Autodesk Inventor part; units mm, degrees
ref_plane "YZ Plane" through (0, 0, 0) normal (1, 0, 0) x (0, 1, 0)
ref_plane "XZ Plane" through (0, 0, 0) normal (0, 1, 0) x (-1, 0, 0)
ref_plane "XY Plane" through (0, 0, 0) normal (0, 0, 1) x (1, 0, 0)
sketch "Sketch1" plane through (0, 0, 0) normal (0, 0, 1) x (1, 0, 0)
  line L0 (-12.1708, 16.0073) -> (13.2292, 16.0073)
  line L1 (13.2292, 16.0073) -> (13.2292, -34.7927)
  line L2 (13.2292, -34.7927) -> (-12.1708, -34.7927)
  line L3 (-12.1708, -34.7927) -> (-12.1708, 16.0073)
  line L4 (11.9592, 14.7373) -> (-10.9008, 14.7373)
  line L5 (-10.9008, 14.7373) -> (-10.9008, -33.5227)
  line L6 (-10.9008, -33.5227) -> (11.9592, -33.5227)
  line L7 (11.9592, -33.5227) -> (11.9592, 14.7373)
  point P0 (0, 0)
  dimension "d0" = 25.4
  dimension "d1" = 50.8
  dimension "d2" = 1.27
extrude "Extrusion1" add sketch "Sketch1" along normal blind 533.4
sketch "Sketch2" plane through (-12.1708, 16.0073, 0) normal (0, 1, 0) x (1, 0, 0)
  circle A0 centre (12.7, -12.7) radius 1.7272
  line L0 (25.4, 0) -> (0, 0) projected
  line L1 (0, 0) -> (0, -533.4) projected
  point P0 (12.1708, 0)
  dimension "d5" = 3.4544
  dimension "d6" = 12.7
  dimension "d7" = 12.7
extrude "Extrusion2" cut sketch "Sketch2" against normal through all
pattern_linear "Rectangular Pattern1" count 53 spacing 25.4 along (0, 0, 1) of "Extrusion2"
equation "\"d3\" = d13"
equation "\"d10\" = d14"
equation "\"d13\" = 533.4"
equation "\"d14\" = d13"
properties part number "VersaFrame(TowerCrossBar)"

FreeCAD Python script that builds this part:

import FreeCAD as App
import Part
import Sketcher
from FreeCAD import Vector
Q = App.Units.Quantity

doc = App.newDocument("Part")
body = doc.addObject("PartDesign::Body", "Body")

# Sketch on XY plane
sketch1 = doc.addObject("Sketcher::SketchObject", "Sketch")
body.addObject(sketch1)
sketch1.AttachmentSupport = (doc.XY_Plane, [""])
sketch1.MapMode = "FlatFace"
sketch1.addGeometry([
    Part.LineSegment(Vector(13, 16, 0), Vector(-12, 16, 0)),  # 0
    Part.LineSegment(Vector(-12, 16, 0), Vector(-12, -35, 0)),  # 1
    Part.LineSegment(Vector(-12, -35, 0), Vector(13, -35, 0)),  # 2
    Part.LineSegment(Vector(13, -35, 0), Vector(13, 16, 0)),  # 3
    Part.LineSegment(Vector(-11, 15, 0), Vector(12, 15, 0)),  # 4
    Part.LineSegment(Vector(12, 15, 0), Vector(12, -34, 0)),  # 5
    Part.LineSegment(Vector(12, -34, 0), Vector(-11, -34, 0)),  # 6
    Part.LineSegment(Vector(-11, -34, 0), Vector(-11, 15, 0)),  # 7
], False)
sketch1.addConstraint([
    Sketcher.Constraint("Coincident", 0, 2, 1, 1),
    Sketcher.Constraint("Coincident", 1, 2, 2, 1),
    Sketcher.Constraint("Coincident", 2, 2, 3, 1),
    Sketcher.Constraint("Coincident", 3, 2, 0, 1),
    Sketcher.Constraint("Coincident", 4, 2, 5, 1),
    Sketcher.Constraint("Coincident", 5, 2, 6, 1),
    Sketcher.Constraint("Coincident", 6, 2, 7, 1),
    Sketcher.Constraint("Coincident", 7, 2, 4, 1),
    Sketcher.Constraint("Horizontal", 0),
    Sketcher.Constraint("Vertical", 1),
    Sketcher.Constraint("Horizontal", 2),
    Sketcher.Constraint("Vertical", 3),
    Sketcher.Constraint("Horizontal", 4),
    Sketcher.Constraint("Vertical", 5),
    Sketcher.Constraint("Horizontal", 6),
    Sketcher.Constraint("Vertical", 7),
    Sketcher.Constraint("DistanceX", 0, 2, 0, 1, Q("1 in")),
    Sketcher.Constraint("DistanceY", 1, 2, 1, 1, Q("2 in")),
    Sketcher.Constraint("DistanceX", 4, 2, 3, 2, Q("0.05 in")),
    Sketcher.Constraint("DistanceY", 4, 2, 3, 2, Q("0.05 in")),
    Sketcher.Constraint("DistanceY", 2, 2, 5, 2, Q("0.05 in")),
    Sketcher.Constraint("DistanceX", 1, 2, 6, 2, Q("0.05 in")),
    Sketcher.Constraint("DistanceY", -1, 1, 0, 2, Q("0.6302 in")),
    Sketcher.Constraint("DistanceX", 0, 2, -1, 1, Q("12.1708 mm")),
])
pad1 = doc.addObject("PartDesign::Pad", "Pad")
body.addObject(pad1)
pad1.Profile = sketch1
pad1.Length = Q("21 in")

# Sketch on XZ plane
sketch2 = doc.addObject("Sketcher::SketchObject", "Sketch001")
body.addObject(sketch2)
sketch2.AttachmentSupport = (doc.XZ_Plane, [""])
sketch2.MapMode = "FlatFace"
sketch2.AttachmentOffset = App.Placement(Vector(0, 0, -0.6302087 * 25.4), App.Rotation())
sketch2.addGeometry(Part.Circle(Vector(0.5, 12.7, 0), Vector(0, 0, 1), 1.7), False)
sketch2.addConstraint([
    Sketcher.Constraint("Diameter", 0, Q("0.136 in")),
    Sketcher.Constraint("DistanceY", -1, 1, 0, 3, Q("0.5 in")),
    Sketcher.Constraint("DistanceX", -1, 1, 0, 3, Q("0.5292 mm")),
])
pocket1 = doc.addObject("PartDesign::Pocket", "Pocket")
body.addObject(pocket1)
pocket1.Profile = sketch2
pocket1.Type = "ThroughAll"
pocket1.Reversed = True
doc.recompute()

linearpattern = doc.addObject("PartDesign::LinearPattern", "LinearPattern")
body.addObject(linearpattern)
linearpattern.Originals = [pocket1]
linearpattern.Direction = (doc.Z_Axis, [""])
linearpattern.Mode = "offset"
linearpattern.Offset = Q("1 in")
linearpattern.Occurrences = 53
body.Tip = linearpattern

doc.recompute()
